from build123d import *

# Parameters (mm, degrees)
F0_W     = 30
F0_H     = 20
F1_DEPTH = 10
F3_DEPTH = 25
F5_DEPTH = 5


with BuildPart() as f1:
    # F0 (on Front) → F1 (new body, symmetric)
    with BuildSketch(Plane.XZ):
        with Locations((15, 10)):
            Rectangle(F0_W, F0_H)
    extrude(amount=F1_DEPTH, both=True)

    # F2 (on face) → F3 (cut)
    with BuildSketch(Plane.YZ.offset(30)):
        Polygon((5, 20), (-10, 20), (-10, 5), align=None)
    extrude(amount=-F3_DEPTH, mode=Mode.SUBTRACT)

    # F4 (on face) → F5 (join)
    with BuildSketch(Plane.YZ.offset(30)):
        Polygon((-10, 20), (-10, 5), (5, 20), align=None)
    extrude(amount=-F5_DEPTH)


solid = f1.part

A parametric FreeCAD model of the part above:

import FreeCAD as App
import Part
import Sketcher

V = App.Vector


def add_polygon(sketch, points):
    """Adds a closed chain of lines whose ends are joined by coincident constraints."""
    first, n = sketch.GeometryCount, len(points)
    for a, b in zip(points, points[1:] + points[:1]):
        sketch.addGeometry(Part.LineSegment(App.Vector(*a, 0), App.Vector(*b, 0)), False)
    for i in range(n):
        sketch.addConstraint(Sketcher.Constraint("Coincident", first + i, 2, first + (i + 1) % n, 1))

doc = App.newDocument("Part")
body = doc.addObject("PartDesign::Body", "Body")

sketch1 = body.newObject("Sketcher::SketchObject", "Sketch")
sketch1.AttachmentSupport = (doc.getObject("XZ_Plane"), [""])
sketch1.MapMode = "FlatFace"
add_polygon(sketch1, [(0, 20), (0, 0), (30, 0), (30, 20)])
sketch1.addConstraint([
    Sketcher.Constraint("Vertical", 0),
    Sketcher.Constraint("Horizontal", 1),
    Sketcher.Constraint("Vertical", 2),
    Sketcher.Constraint("Horizontal", 3),
    Sketcher.Constraint("Coincident", 0, 2, -1, 1),
    Sketcher.Constraint("DistanceX", 1, 1, 1, 2, 30.0),
    Sketcher.Constraint("DistanceY", 0, 2, 0, 1, 20.0),
])
pad1 = body.newObject("PartDesign::Pad", "Pad")
pad1.Profile = sketch1
pad1.Length = 20
pad1.Midplane = True

sketch2 = body.newObject("Sketcher::SketchObject", "Sketch001")
sketch2.AttachmentSupport = (doc.getObject("YZ_Plane"), [""])
sketch2.MapMode = "FlatFace"
sketch2.AttachmentOffset = App.Placement(V(0, 0, 30), App.Rotation())
add_polygon(sketch2, [(5, 20), (-10, 20), (-10, 5)])
sketch2.addConstraint([
    Sketcher.Constraint("Horizontal", 0),
    Sketcher.Constraint("Vertical", 1),
    Sketcher.Constraint("Equal", 0, 1),
    Sketcher.Constraint("DistanceX", 0, 2, 0, 1, 15.0),
    Sketcher.Constraint("DistanceX", 0, 2, -1, 1, 10.0),
    Sketcher.Constraint("DistanceY", -1, 1, 0, 2, 20.0),
])
pocket1 = body.newObject("PartDesign::Pocket", "Pocket")
pocket1.Profile = sketch2
pocket1.Length = 25

sketch3 = body.newObject("Sketcher::SketchObject", "Sketch002")
sketch3.AttachmentSupport = (doc.getObject("YZ_Plane"), [""])
sketch3.MapMode = "FlatFace"
sketch3.AttachmentOffset = App.Placement(V(0, 0, 30), App.Rotation())
add_polygon(sketch3, [(-10, 20), (-10, 5), (5, 20)])
sketch3.addConstraint([
    Sketcher.Constraint("Vertical", 0),
    Sketcher.Constraint("Horizontal", 2),
    Sketcher.Constraint("Equal", 2, 0),
    Sketcher.Constraint("DistanceX", 2, 2, 2, 1, 15.0),
    Sketcher.Constraint("DistanceX", 0, 2, -1, 1, 10.0),
    Sketcher.Constraint("DistanceY", -1, 1, 0, 2, 5.0),
])
pad2 = body.newObject("PartDesign::Pad", "Pad001")
pad2.Profile = sketch3
pad2.Length = 5
pad2.Reversed = True

doc.recompute()
